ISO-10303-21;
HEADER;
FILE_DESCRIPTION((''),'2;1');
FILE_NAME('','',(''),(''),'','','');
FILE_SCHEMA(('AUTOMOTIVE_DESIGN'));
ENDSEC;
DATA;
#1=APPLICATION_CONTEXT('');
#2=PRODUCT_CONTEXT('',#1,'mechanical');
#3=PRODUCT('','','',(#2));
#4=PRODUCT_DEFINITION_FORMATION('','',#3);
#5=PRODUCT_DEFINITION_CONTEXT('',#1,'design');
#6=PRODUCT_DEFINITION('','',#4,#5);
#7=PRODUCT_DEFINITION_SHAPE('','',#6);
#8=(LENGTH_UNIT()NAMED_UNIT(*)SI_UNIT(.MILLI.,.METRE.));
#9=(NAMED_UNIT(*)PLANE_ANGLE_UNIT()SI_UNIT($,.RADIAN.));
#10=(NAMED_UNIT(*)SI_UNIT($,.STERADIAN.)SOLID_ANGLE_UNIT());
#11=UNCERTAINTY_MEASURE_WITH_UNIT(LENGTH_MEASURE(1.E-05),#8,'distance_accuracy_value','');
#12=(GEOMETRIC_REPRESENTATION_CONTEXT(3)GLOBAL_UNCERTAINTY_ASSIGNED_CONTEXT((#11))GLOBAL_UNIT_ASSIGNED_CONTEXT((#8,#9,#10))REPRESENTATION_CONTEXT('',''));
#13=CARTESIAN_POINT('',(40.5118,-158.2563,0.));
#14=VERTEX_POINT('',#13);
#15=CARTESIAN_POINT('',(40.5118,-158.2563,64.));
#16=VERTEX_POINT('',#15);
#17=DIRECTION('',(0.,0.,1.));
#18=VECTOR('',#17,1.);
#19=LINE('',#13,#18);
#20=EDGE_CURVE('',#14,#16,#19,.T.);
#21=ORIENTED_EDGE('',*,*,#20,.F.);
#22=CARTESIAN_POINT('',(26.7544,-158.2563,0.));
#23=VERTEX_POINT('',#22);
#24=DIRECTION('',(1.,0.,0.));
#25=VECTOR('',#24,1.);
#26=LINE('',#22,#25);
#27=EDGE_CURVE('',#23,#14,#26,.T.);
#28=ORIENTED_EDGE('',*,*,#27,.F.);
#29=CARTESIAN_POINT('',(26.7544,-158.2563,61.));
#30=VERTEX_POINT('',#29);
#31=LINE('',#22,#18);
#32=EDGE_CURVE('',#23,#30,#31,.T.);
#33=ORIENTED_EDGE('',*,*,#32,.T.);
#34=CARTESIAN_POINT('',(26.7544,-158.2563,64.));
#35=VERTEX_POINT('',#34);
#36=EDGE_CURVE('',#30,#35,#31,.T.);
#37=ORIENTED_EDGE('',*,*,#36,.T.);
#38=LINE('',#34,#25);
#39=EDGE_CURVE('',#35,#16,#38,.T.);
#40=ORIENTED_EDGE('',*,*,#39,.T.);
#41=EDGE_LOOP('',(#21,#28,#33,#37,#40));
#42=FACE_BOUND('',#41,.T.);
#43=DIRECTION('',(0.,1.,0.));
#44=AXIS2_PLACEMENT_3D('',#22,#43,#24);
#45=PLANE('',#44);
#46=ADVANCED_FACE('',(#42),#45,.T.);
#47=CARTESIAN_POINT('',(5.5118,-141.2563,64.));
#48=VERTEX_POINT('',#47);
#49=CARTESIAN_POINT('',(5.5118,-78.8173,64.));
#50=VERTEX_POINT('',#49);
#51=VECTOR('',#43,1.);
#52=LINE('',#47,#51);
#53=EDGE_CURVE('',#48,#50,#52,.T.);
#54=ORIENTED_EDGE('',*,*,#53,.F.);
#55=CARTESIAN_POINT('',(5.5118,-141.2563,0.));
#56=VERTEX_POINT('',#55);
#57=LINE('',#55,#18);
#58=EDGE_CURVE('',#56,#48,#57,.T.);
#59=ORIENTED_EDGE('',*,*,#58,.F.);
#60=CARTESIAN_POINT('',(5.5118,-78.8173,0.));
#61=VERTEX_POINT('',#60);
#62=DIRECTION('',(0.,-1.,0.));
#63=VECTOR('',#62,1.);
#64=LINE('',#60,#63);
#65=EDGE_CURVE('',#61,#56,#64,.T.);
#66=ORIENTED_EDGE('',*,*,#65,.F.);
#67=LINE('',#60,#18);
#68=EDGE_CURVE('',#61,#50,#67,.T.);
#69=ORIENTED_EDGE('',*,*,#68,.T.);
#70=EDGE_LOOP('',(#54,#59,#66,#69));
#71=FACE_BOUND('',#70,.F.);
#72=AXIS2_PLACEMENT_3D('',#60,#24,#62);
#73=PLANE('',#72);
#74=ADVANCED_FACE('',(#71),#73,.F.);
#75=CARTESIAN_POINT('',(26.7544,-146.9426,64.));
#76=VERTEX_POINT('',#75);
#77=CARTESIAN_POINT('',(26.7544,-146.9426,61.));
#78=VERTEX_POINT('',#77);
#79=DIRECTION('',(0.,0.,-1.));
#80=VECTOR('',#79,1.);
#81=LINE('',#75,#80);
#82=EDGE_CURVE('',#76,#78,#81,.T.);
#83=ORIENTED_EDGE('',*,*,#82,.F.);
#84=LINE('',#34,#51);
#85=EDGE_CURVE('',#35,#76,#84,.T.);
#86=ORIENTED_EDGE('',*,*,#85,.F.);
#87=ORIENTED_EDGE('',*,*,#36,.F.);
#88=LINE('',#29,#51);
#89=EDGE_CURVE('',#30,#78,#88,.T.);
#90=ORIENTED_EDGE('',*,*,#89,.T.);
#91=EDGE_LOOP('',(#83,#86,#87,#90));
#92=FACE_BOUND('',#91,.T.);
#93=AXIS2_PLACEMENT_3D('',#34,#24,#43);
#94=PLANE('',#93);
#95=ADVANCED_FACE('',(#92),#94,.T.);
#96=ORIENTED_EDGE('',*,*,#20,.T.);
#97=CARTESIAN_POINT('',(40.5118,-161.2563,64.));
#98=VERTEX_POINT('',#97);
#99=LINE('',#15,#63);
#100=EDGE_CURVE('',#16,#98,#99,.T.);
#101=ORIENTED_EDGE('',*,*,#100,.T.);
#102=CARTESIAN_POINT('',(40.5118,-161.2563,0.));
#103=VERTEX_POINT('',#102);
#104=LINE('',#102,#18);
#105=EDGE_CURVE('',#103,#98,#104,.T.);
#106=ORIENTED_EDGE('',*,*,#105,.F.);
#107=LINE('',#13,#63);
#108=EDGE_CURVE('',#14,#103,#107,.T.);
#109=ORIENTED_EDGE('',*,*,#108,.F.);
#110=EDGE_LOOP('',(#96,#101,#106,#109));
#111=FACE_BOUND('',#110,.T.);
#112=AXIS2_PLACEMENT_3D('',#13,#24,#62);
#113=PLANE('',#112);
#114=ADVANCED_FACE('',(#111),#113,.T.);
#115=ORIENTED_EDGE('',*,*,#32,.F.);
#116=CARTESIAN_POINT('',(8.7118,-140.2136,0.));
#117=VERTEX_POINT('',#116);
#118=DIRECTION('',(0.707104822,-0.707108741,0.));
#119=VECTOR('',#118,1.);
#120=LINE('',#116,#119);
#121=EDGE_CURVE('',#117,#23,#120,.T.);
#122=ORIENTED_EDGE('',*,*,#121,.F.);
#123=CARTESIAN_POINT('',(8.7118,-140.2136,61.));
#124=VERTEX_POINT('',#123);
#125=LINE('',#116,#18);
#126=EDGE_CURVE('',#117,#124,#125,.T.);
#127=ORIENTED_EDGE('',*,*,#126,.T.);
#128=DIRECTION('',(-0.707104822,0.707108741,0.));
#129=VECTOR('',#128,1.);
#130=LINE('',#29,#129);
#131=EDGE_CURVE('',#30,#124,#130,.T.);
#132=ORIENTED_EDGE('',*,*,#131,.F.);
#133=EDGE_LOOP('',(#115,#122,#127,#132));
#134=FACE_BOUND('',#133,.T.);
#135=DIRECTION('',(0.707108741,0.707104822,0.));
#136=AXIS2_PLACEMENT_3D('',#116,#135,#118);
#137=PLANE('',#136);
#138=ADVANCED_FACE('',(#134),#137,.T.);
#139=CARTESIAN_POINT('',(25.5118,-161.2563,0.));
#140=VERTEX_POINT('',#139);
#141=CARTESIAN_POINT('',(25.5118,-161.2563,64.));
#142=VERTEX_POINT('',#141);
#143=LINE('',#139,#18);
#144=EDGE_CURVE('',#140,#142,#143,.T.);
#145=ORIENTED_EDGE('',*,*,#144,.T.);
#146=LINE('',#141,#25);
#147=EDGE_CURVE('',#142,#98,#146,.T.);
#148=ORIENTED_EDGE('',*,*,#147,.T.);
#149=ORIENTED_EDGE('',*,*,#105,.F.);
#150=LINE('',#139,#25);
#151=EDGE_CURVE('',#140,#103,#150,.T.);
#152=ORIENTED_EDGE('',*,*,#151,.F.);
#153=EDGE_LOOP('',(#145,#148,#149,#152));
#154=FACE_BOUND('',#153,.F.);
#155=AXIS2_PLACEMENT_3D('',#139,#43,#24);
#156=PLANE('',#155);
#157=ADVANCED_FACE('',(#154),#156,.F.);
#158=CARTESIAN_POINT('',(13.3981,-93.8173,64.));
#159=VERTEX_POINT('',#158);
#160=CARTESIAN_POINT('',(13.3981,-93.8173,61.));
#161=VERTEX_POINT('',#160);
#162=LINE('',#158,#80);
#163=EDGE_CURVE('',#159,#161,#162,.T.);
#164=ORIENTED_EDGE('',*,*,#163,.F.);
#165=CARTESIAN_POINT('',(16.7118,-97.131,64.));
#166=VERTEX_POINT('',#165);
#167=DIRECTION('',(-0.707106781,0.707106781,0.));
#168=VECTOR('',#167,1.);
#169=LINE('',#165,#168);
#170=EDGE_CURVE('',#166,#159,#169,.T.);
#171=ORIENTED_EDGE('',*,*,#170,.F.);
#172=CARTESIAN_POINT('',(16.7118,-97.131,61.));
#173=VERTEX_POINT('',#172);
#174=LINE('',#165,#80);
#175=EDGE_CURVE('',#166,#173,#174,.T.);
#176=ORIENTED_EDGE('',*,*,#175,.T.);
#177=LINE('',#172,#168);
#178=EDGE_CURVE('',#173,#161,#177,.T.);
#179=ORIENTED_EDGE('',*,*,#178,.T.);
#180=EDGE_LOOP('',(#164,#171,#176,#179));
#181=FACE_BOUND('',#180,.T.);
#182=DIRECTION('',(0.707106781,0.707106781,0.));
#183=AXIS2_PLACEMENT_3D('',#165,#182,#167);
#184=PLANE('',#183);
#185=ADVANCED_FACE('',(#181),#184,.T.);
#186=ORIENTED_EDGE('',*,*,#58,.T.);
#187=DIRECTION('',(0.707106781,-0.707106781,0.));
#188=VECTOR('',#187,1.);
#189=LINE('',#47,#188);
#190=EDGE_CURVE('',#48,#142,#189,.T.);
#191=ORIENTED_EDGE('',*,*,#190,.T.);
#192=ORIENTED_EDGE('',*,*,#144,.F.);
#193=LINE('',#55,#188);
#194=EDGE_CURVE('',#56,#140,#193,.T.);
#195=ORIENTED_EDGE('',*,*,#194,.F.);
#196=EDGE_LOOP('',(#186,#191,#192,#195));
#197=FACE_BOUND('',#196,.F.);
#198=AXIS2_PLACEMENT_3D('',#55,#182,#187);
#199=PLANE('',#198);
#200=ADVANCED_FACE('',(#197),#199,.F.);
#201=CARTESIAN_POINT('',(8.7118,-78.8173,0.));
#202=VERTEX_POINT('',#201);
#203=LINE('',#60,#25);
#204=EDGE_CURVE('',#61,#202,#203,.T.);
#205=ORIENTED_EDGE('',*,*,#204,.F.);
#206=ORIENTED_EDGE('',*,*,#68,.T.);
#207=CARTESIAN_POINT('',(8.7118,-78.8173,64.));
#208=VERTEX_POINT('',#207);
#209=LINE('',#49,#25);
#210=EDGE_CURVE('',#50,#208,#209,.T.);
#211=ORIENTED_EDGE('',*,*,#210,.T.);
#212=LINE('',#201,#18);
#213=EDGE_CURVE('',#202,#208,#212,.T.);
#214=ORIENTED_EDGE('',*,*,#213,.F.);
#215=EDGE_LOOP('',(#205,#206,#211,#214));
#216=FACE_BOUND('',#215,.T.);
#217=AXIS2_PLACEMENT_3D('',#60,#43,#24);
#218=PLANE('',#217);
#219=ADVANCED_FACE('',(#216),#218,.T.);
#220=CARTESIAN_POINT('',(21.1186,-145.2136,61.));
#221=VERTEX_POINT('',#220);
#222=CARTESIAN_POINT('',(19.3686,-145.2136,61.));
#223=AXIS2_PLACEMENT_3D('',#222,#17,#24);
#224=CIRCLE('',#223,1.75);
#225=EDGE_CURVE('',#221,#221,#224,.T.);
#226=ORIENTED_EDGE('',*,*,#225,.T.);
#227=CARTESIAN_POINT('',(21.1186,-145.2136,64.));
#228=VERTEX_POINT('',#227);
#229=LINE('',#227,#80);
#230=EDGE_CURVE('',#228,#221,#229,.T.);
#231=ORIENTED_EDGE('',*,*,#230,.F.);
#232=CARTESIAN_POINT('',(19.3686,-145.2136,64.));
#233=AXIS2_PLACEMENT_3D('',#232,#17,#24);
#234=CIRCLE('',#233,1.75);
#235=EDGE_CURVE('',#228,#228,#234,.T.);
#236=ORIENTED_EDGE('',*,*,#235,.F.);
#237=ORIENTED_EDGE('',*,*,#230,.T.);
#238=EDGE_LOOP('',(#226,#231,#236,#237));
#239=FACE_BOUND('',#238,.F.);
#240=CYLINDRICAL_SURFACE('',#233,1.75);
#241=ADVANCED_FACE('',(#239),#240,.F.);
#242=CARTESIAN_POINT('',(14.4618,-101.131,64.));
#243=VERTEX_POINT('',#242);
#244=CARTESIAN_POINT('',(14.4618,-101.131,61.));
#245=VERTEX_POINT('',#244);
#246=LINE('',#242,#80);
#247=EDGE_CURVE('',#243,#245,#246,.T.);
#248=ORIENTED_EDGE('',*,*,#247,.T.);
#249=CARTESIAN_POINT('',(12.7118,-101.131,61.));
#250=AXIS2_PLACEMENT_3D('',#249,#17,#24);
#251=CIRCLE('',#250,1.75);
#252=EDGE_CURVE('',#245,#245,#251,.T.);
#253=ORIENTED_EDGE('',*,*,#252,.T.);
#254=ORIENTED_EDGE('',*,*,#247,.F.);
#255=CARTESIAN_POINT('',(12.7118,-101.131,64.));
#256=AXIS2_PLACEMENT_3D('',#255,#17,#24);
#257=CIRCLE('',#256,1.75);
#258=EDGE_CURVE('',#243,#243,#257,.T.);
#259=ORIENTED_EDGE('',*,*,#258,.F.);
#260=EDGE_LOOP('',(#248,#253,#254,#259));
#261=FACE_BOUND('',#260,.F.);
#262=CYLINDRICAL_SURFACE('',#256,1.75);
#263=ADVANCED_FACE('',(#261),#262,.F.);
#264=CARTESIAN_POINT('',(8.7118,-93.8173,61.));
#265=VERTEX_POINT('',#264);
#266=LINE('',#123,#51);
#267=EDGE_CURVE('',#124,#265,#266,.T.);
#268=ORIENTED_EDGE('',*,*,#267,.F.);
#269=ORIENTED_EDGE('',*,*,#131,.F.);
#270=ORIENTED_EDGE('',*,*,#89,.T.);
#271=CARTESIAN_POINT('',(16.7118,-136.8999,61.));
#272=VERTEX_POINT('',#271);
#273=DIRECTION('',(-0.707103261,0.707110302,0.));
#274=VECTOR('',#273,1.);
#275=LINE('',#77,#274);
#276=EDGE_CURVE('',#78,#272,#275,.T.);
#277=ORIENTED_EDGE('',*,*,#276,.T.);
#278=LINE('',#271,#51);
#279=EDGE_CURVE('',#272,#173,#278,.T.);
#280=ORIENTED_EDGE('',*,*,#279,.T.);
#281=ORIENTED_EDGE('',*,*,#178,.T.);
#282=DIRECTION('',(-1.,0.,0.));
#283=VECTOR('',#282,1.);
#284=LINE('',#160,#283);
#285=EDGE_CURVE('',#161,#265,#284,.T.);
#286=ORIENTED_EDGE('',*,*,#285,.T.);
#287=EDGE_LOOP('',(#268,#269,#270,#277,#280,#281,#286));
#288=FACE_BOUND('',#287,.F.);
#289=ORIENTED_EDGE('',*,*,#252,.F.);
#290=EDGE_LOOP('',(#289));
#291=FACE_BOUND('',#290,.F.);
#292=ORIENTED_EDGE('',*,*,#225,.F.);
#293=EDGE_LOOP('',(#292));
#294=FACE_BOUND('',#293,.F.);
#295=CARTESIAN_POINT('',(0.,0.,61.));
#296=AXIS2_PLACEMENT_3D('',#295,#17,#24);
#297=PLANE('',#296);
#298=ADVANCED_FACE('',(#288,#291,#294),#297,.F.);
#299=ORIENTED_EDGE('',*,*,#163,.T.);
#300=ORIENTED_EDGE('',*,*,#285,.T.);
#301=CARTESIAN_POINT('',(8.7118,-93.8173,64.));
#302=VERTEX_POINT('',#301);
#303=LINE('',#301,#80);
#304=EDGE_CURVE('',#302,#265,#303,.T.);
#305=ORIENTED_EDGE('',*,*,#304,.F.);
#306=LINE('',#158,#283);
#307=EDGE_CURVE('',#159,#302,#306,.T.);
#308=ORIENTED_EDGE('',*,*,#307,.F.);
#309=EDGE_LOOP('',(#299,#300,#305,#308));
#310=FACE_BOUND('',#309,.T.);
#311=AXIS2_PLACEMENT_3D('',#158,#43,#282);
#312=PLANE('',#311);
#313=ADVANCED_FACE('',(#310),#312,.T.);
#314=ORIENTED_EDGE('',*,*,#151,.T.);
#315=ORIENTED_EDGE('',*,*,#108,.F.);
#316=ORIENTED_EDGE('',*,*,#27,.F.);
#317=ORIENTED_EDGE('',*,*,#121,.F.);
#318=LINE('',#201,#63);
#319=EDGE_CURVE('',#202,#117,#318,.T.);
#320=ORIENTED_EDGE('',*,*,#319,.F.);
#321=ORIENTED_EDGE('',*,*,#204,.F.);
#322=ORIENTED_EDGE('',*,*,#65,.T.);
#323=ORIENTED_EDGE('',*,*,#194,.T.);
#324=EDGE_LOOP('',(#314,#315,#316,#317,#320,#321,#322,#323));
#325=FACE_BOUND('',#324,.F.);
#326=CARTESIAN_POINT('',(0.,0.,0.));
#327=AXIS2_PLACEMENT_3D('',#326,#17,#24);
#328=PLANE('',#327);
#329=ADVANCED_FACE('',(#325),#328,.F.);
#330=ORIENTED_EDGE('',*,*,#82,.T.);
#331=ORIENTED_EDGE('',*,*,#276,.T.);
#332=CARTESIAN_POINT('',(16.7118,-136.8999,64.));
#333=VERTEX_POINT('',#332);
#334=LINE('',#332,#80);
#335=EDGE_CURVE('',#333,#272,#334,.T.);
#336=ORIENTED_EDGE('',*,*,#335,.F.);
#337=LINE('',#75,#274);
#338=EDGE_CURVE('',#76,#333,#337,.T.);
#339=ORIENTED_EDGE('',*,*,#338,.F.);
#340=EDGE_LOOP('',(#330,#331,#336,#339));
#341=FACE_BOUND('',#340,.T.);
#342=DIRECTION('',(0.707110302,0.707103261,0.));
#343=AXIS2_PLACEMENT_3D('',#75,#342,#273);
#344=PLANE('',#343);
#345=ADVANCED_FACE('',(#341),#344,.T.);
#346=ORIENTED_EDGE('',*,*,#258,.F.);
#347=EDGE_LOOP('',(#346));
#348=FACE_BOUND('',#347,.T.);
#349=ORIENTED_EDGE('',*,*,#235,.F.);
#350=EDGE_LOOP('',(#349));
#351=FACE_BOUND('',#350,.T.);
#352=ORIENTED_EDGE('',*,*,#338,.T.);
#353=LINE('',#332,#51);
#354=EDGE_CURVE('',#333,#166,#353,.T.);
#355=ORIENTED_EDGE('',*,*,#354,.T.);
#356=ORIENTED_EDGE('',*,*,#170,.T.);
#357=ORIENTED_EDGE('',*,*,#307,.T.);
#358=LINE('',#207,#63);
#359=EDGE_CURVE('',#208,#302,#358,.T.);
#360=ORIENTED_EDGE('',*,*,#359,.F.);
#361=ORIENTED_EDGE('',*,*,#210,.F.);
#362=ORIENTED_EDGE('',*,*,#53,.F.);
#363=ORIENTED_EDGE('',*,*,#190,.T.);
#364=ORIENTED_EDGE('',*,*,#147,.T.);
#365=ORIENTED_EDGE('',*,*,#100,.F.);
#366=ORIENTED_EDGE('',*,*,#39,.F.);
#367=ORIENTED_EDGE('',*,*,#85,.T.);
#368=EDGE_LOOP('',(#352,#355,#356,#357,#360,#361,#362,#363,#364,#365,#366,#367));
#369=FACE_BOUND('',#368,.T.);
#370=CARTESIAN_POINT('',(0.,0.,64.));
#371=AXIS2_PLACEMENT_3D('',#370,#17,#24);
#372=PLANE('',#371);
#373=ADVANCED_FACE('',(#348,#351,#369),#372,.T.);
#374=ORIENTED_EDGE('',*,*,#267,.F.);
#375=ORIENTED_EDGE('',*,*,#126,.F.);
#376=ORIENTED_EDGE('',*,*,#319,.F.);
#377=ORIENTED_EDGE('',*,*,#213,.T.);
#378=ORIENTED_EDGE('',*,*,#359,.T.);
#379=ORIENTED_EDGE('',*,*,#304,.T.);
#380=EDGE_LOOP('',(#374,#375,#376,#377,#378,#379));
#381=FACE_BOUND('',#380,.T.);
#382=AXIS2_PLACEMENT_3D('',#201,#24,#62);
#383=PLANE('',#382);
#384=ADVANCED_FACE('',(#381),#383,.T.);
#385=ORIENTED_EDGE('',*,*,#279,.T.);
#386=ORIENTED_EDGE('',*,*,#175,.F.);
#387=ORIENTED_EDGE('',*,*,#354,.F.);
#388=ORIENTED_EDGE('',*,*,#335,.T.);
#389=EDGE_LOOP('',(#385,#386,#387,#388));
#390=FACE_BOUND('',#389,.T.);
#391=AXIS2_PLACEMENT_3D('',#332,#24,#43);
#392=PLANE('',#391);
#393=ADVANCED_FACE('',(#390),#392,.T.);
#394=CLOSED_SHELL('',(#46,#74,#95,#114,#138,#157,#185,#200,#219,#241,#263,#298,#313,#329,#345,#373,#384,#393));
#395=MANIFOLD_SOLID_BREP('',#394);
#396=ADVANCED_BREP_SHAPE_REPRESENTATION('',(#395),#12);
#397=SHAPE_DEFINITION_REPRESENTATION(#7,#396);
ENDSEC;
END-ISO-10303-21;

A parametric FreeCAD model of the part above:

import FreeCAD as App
import Part
import Sketcher

V = App.Vector
Q = App.Units.Quantity


def add_polygon(sketch, points):
    """Adds a closed chain of lines whose ends are joined by coincident constraints."""
    first, n = sketch.GeometryCount, len(points)
    for a, b in zip(points, points[1:] + points[:1]):
        sketch.addGeometry(Part.LineSegment(App.Vector(*a, 0), App.Vector(*b, 0)), False)
    for i in range(n):
        sketch.addConstraint(Sketcher.Constraint("Coincident", first + i, 2, first + (i + 1) % n, 1))

doc = App.newDocument("Part")
params = doc.addObject("Spreadsheet::Sheet", "Params")
for row, (alias, value) in enumerate([
    ("sketch1_height", "3 mm"),
    ("sketch1_width", "15 mm"),
    ("sketch1_width2", "3.2 mm"),
    ("pad1_length", "64 mm"),
    ("sketch2_diameter", "3.5 mm"),
    ("pad2_length", "3 mm"),
], start=1):
    params.set(f"A{row}", alias)
    params.set(f"B{row}", "=" + value)
    params.setAlias(f"B{row}", alias)

body = doc.addObject("PartDesign::Body", "Body")

sketch1 = body.newObject("Sketcher::SketchObject", "Sketch")
sketch1.AttachmentSupport = (doc.getObject("XY_Plane"), [""])
sketch1.MapMode = "FlatFace"
add_polygon(sketch1, [(8.7, -78.8), (5.5, -78.8), (5.5, -141.3), (25.5, -161.3), (40.5, -161.3), (40.5, -158.3), (26.8, -158.3), (8.7, -140.2)])
sketch1.addConstraint(Sketcher.Constraint("Horizontal", 0))
sketch1.addConstraint(Sketcher.Constraint("Vertical", 1))
sketch1.addConstraint(Sketcher.Constraint("Horizontal", 3))
sketch1.addConstraint(Sketcher.Constraint("Vertical", 4))
sketch1.addConstraint(Sketcher.Constraint("Horizontal", 5))
sketch1.addConstraint(Sketcher.Constraint("Vertical", 7))
sketch1.addConstraint(Sketcher.Constraint("Parallel", 2, 6))
sketch1.addConstraint(Sketcher.Constraint("DistanceY", 4, 1, 4, 2, 3.0))
sketch1.addConstraint(Sketcher.Constraint("DistanceX", 3, 1, 3, 2, 15.0))
sketch1.addConstraint(Sketcher.Constraint("Angle", 2, Q("-45 deg")))
sketch1.addConstraint(Sketcher.Constraint("DistanceX", 0, 2, 0, 1, 3.2))
sketch1.addConstraint(Sketcher.Constraint("DistanceX", 1, 2, 2, 2, 20.0))
sketch1.addConstraint(Sketcher.Constraint("DistanceY", 1, 2, 1, 1, 62.439))
sketch1.addConstraint(Sketcher.Constraint("DistanceX", 5, 2, 5, 1, 13.7574))
sketch1.addConstraint(Sketcher.Constraint("DistanceX", -1, 1, 0, 2, 5.5118))
sketch1.addConstraint(Sketcher.Constraint("DistanceY", 0, 2, -1, 1, 78.8173))
sketch1.setExpression("Constraints[15]", "Params.sketch1_height")
sketch1.setExpression("Constraints[16]", "Params.sketch1_width")
sketch1.setExpression("Constraints[18]", "Params.sketch1_width2")
pad1 = body.newObject("PartDesign::Pad", "Pad")
pad1.Profile = sketch1
pad1.setExpression("Length", "Params.pad1_length")

sketch2 = body.newObject("Sketcher::SketchObject", "Sketch001")
sketch2.AttachmentSupport = (doc.getObject("XY_Plane"), [""])
sketch2.MapMode = "FlatFace"
sketch2.AttachmentOffset = App.Placement(V(0, 0, 64), App.Rotation())
add_polygon(sketch2, [(8.7, -93.8), (8.7, -140.2), (26.8, -158.3), (26.8, -146.9), (16.7, -136.9), (16.7, -97.1), (13.4, -93.8)])
sketch2.addGeometry(Part.Circle(V(19.4, -145.2, 0), V(0, 0, 1), 1.8), False)
sketch2.addGeometry(Part.Circle(V(12.7, -101.1, 0), V(0, 0, 1), 1.8), False)
sketch2.addConstraint(Sketcher.Constraint("Vertical", 0))
sketch2.addConstraint(Sketcher.Constraint("Vertical", 2))
sketch2.addConstraint(Sketcher.Constraint("Vertical", 4))
sketch2.addConstraint(Sketcher.Constraint("Horizontal", 6))
sketch2.addConstraint(Sketcher.Constraint("Equal", 7, 8))
sketch2.addConstraint(Sketcher.Constraint("Parallel", 1, 3))
sketch2.addConstraint(Sketcher.Constraint("Parallel", 3, 5))
sketch2.addConstraint(Sketcher.Constraint("Diameter", 7, 3.5))
sketch2.addConstraint(Sketcher.Constraint("Angle", 1, Q("-45.0002 deg")))
sketch2.addConstraint(Sketcher.Constraint("DistanceY", 7, 3, 0, 2, 5.0))
sketch2.addConstraint(Sketcher.Constraint("DistanceX", 0, 2, 8, 3, 4.0))
sketch2.addConstraint(Sketcher.Constraint("DistanceX", 8, 3, 3, 2, 4.0))
sketch2.addConstraint(Sketcher.Constraint("DistanceY", 8, 3, 4, 2, 4.0))
sketch2.addConstraint(Sketcher.Constraint("DistanceY", 3, 2, -1, 1, 136.9))
sketch2.addConstraint(Sketcher.Constraint("DistanceY", 4, 1, 4, 2, 39.769))
sketch2.addConstraint(Sketcher.Constraint("DistanceX", 6, 2, 6, 1, 4.6863))
sketch2.addConstraint(Sketcher.Constraint("DistanceY", 0, 2, 0, 1, 46.3963))
sketch2.addConstraint(Sketcher.Constraint("DistanceX", -1, 1, 5, 2, 13.398))
sketch2.addConstraint(Sketcher.Constraint("DistanceY", 2, 2, 7, 3, 1.729))
sketch2.addConstraint(Sketcher.Constraint("DistanceX", -1, 1, 7, 3, 19.3686))
sketch2.setExpression("Constraints[14]", "Params.sketch2_diameter")
pad2 = body.newObject("PartDesign::Pad", "Pad001")
pad2.Profile = sketch2
pad2.setExpression("Length", "Params.pad2_length")
pad2.Reversed = True

doc.recompute()
